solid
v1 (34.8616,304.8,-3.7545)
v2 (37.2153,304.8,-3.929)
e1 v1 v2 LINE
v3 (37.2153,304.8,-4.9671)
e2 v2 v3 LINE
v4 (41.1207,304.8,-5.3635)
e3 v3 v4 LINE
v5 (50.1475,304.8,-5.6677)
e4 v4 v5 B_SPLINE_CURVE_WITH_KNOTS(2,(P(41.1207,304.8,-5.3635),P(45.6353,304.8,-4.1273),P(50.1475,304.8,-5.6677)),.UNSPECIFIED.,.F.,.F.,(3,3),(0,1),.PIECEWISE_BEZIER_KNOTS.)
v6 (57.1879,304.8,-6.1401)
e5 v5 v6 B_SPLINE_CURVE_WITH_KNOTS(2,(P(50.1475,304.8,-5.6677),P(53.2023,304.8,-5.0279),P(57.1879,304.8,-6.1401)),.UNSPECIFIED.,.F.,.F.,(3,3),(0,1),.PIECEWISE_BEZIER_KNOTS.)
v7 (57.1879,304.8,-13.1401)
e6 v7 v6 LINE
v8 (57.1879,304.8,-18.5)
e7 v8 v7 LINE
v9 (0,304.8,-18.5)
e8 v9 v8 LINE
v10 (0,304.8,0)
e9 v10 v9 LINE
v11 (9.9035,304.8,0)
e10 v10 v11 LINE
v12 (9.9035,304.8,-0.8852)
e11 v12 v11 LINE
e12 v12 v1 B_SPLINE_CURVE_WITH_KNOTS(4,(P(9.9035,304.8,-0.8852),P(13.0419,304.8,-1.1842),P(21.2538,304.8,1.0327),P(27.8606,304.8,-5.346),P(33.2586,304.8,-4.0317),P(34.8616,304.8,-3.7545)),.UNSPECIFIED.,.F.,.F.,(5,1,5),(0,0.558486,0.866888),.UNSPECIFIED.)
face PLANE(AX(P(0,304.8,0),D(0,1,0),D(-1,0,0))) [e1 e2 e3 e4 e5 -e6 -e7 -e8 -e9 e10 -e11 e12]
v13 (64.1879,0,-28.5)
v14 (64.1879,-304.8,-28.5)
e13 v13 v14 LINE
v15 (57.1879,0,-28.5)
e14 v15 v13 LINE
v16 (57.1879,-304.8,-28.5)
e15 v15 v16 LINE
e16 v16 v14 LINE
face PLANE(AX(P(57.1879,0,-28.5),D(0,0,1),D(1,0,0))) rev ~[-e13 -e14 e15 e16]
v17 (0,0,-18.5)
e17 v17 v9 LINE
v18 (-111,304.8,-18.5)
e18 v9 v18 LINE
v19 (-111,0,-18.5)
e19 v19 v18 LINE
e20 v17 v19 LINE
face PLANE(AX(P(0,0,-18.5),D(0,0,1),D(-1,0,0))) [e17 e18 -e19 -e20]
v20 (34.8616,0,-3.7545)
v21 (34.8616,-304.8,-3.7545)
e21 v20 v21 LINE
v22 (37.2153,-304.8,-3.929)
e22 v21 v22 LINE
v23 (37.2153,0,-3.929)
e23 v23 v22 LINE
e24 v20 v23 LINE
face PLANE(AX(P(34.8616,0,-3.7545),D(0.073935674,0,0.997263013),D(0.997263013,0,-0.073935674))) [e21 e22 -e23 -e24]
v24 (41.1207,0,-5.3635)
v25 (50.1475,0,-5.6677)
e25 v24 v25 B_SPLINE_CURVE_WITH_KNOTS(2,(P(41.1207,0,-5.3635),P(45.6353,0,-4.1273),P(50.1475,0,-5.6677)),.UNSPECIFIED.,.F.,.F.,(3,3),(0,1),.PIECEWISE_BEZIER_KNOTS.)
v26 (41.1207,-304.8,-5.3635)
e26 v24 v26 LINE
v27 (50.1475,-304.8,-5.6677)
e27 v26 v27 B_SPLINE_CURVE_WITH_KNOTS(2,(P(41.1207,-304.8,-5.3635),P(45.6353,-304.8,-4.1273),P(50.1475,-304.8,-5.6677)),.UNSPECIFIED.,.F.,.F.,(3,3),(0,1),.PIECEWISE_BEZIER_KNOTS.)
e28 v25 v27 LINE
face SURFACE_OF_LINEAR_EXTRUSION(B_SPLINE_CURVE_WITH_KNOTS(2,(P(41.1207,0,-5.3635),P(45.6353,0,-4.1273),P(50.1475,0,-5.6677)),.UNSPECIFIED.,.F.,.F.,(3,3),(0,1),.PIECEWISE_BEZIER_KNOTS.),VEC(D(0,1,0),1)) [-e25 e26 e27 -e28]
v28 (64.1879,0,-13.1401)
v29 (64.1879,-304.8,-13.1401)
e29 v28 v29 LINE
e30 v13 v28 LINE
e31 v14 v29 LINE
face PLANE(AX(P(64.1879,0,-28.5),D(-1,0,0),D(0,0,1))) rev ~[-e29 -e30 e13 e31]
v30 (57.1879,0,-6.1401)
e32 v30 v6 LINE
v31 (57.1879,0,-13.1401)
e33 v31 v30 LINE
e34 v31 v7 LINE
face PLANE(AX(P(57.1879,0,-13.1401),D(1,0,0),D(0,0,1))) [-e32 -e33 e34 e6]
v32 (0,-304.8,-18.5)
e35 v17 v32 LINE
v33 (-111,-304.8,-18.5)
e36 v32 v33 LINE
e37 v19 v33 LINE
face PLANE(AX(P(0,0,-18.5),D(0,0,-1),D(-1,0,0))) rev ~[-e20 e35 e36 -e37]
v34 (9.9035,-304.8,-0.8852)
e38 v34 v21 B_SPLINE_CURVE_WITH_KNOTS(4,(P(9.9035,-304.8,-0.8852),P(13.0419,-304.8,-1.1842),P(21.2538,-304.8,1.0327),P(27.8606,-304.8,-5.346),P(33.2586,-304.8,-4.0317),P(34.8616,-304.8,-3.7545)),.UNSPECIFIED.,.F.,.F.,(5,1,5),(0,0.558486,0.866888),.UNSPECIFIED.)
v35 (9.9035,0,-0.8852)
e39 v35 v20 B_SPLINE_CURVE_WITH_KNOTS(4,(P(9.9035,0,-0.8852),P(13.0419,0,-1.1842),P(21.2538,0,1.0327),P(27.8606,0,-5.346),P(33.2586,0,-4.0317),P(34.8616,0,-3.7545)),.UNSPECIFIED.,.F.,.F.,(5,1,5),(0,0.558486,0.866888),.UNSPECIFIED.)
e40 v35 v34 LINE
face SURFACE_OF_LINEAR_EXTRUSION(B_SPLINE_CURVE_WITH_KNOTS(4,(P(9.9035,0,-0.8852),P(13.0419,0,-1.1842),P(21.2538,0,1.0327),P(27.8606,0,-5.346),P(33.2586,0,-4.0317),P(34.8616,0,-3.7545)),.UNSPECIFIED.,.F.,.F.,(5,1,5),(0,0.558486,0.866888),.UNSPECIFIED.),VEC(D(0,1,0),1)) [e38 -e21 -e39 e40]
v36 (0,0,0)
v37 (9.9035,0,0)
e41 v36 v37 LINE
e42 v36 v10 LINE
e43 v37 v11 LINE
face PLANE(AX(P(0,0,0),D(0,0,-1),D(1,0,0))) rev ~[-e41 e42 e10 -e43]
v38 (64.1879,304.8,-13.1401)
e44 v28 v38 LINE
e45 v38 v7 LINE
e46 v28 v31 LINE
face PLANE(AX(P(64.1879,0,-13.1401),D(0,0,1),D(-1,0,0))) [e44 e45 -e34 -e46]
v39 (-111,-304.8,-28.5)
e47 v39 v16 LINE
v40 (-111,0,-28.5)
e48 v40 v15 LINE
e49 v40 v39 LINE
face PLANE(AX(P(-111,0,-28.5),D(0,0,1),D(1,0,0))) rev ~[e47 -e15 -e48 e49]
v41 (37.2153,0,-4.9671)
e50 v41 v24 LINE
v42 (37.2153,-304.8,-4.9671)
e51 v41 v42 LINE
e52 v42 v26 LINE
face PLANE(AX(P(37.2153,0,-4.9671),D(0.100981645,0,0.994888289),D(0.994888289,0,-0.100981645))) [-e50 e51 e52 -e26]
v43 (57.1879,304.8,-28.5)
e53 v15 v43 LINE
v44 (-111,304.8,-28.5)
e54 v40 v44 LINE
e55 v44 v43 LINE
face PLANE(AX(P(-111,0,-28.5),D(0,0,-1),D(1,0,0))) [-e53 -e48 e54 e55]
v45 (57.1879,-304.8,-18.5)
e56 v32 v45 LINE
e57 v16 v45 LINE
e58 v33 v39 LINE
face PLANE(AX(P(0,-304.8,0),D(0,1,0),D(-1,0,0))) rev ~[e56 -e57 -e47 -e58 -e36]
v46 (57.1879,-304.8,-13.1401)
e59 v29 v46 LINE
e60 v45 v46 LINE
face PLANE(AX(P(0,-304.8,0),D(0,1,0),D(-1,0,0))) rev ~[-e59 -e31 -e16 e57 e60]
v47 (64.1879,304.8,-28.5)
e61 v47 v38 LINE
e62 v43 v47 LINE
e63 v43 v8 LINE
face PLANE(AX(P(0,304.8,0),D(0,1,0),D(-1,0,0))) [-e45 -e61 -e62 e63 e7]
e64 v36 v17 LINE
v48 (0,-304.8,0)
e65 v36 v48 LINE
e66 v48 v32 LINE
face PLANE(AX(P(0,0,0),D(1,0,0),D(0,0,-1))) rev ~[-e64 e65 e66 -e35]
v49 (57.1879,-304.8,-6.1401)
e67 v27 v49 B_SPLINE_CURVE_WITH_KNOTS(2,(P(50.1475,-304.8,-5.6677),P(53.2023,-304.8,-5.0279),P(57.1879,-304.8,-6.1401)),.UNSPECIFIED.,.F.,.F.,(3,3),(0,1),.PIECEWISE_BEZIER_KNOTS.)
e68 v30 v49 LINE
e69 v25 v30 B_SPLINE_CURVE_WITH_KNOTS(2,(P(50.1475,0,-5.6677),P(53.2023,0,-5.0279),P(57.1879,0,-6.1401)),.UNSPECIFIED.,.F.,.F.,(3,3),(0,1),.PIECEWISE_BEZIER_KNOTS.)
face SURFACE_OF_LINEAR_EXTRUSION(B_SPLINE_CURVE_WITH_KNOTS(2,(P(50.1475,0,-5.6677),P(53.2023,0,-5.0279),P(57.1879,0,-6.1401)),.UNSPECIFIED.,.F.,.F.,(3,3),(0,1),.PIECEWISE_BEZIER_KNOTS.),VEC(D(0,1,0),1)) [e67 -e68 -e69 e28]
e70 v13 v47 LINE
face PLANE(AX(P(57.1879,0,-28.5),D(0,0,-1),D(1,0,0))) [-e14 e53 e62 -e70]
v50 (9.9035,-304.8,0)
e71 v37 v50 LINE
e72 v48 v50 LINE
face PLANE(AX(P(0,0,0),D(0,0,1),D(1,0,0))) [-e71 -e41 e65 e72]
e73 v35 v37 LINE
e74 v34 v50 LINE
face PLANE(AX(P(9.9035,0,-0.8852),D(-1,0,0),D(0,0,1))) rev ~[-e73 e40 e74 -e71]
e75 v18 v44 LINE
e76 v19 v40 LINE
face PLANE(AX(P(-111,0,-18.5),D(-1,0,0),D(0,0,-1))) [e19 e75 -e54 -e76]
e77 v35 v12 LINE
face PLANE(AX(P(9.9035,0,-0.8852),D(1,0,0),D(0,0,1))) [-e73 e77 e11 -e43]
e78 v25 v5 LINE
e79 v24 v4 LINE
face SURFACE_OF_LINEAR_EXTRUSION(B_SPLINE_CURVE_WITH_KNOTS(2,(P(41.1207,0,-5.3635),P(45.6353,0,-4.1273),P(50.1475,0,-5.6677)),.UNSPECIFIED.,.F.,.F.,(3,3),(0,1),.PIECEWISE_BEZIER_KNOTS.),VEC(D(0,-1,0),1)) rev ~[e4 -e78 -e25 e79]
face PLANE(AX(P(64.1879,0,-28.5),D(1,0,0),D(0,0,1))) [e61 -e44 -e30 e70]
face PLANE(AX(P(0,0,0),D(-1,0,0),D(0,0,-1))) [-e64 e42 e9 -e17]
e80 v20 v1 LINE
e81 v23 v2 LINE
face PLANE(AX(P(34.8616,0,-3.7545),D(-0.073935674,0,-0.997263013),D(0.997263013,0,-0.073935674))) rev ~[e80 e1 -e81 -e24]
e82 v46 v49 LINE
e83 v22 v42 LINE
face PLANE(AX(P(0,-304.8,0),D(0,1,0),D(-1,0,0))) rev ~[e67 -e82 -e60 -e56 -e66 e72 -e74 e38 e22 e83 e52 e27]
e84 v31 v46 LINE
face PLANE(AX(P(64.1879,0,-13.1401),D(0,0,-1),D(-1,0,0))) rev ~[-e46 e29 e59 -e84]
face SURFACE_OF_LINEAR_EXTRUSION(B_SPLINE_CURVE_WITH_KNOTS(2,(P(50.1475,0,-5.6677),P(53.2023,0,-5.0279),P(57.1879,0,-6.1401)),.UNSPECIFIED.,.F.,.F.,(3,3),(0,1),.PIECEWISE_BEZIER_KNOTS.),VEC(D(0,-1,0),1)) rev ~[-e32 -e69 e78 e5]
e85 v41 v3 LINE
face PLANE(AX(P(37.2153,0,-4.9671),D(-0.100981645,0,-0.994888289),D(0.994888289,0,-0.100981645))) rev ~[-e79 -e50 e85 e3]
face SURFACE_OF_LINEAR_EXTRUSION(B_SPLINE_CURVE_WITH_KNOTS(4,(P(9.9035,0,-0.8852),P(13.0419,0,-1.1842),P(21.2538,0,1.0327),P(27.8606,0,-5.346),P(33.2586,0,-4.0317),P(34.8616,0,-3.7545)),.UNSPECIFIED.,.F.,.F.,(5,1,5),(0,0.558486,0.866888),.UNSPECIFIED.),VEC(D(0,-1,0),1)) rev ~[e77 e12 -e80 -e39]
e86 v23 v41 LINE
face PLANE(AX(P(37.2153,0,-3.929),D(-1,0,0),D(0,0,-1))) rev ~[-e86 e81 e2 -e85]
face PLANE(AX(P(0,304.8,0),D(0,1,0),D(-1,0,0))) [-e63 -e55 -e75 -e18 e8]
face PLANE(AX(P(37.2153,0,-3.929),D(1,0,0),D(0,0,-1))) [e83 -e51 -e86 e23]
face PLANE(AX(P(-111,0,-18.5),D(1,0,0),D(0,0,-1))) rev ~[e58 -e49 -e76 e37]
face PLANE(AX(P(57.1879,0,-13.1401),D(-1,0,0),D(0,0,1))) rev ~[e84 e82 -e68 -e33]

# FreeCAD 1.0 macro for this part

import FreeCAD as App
import Part
import Sketcher
Q = App.Units.Quantity

doc = App.newDocument("Part")
body = doc.addObject("PartDesign::Body", "Body")

# Sketch on XZ plane
sketch1 = body.newObject("Sketcher::SketchObject", "Sketch")
sketch1.AttachmentSupport = (doc.getObject("XZ_Plane"), [""])
sketch1.MapMode = "FlatFace"
sketch1.addGeometry([
    Part.LineSegment(App.Vector(0, -18.5, 0), App.Vector(0, 0, 0)),  # 0
    Part.LineSegment(App.Vector(0, 0, 0), App.Vector(9.9035, 0, 0)),  # 1
    Part.LineSegment(App.Vector(9.9035, 0, 0), App.Vector(9.9035, -0.8852, 0)),  # 2
    Part.BSplineCurve([App.Vector(9.9035, -0.8852, 0), App.Vector(13.0419, -1.1842, 0), App.Vector(21.2538, 1.0327, 0), App.Vector(27.8606, -5.346, 0), App.Vector(33.2586, -4.0317, 0), App.Vector(34.8616, -3.7545, 0)], [5, 1, 5], [0, 0.558486, 0.866888], False, 4, [1, 1, 1, 1, 1, 1], False),  # 3
    Part.LineSegment(App.Vector(34.8616, -3.7545, 0), App.Vector(37.2153, -3.929, 0)),  # 4
    Part.LineSegment(App.Vector(37.2153, -3.929, 0), App.Vector(37.2153, -4.9671, 0)),  # 5
    Part.LineSegment(App.Vector(37.2153, -4.9671, 0), App.Vector(41.1207, -5.3635, 0)),  # 6
    Part.BSplineCurve([App.Vector(41.1207, -5.3635, 0), App.Vector(45.6353, -4.1273, 0), App.Vector(50.1475, -5.6677, 0)], [3, 3], [0, 1], False, 2, [1, 1, 1], False),  # 7
    Part.BSplineCurve([App.Vector(50.1475, -5.6677, 0), App.Vector(53.2023, -5.0279, 0), App.Vector(57.1879, -6.1401, 0)], [3, 3], [0, 1], False, 2, [1, 1, 1], False),  # 8
    Part.LineSegment(App.Vector(57.1879, -6.1401, 0), App.Vector(57.1879, -13.1401, 0)),  # 9
    Part.LineSegment(App.Vector(57.1879, -13.1401, 0), App.Vector(64.1879, -13.1401, 0)),  # 10
    Part.LineSegment(App.Vector(64.1879, -13.1401, 0), App.Vector(64.1879, -28.5, 0)),  # 11
    Part.LineSegment(App.Vector(64.1879, -28.5, 0), App.Vector(-111, -28.5, 0)),  # 12
    Part.LineSegment(App.Vector(-111, -28.5, 0), App.Vector(-111, -18.5, 0)),  # 13
    Part.LineSegment(App.Vector(-111, -18.5, 0), App.Vector(0, -18.5, 0)),  # 14
], False)
sketch1.addConstraint([
    Sketcher.Constraint("Block", 3),
    Sketcher.Constraint("Block", 7),
    Sketcher.Constraint("Block", 8),
    Sketcher.Constraint("Coincident", 0, 2, 1, 1),
    Sketcher.Constraint("Coincident", 1, 2, 2, 1),
    Sketcher.Constraint("Coincident", 2, 2, 3, 1),
    Sketcher.Constraint("Coincident", 3, 2, 4, 1),
    Sketcher.Constraint("Coincident", 4, 2, 5, 1),
    Sketcher.Constraint("Coincident", 5, 2, 6, 1),
    Sketcher.Constraint("Coincident", 6, 2, 7, 1),
    Sketcher.Constraint("Coincident", 8, 2, 9, 1),
    Sketcher.Constraint("Coincident", 9, 2, 10, 1),
    Sketcher.Constraint("Coincident", 10, 2, 11, 1),
    Sketcher.Constraint("Coincident", 11, 2, 12, 1),
    Sketcher.Constraint("Coincident", 12, 2, 13, 1),
    Sketcher.Constraint("Coincident", 13, 2, 14, 1),
    Sketcher.Constraint("Coincident", 14, 2, 0, 1),
    Sketcher.Constraint("Vertical", 0),
    Sketcher.Constraint("Horizontal", 1),
    Sketcher.Constraint("Vertical", 2),
    Sketcher.Constraint("Vertical", 5),
    Sketcher.Constraint("Vertical", 9),
    Sketcher.Constraint("Horizontal", 10),
    Sketcher.Constraint("Vertical", 11),
    Sketcher.Constraint("Horizontal", 12),
    Sketcher.Constraint("Vertical", 13),
    Sketcher.Constraint("Horizontal", 14),
    Sketcher.Constraint("Coincident", 0, 2, -1, 1),
    Sketcher.Constraint("Equal", 10, 9),
    Sketcher.Constraint("DistanceX", 10, 1, 10, 2, 7.0),
    Sketcher.Constraint("DistanceX", 14, 1, 14, 2, 111.0),
    Sketcher.Constraint("DistanceY", 13, 1, 13, 2, 10.0),
    Sketcher.Constraint("DistanceY", 0, 1, 0, 2, 18.5),
    Sketcher.Constraint("Angle", 4, Q("-4.24 deg")),
    Sketcher.Constraint("DistanceY", 5, 2, 5, 1, 1.038),
    Sketcher.Constraint("DistanceY", 4, 2, -1, 1, 3.929),
])
pad1 = body.newObject("PartDesign::Pad", "Pad")
pad1.Profile = sketch1
pad1.Length = 609.6
pad1.Midplane = True

doc.recompute()
